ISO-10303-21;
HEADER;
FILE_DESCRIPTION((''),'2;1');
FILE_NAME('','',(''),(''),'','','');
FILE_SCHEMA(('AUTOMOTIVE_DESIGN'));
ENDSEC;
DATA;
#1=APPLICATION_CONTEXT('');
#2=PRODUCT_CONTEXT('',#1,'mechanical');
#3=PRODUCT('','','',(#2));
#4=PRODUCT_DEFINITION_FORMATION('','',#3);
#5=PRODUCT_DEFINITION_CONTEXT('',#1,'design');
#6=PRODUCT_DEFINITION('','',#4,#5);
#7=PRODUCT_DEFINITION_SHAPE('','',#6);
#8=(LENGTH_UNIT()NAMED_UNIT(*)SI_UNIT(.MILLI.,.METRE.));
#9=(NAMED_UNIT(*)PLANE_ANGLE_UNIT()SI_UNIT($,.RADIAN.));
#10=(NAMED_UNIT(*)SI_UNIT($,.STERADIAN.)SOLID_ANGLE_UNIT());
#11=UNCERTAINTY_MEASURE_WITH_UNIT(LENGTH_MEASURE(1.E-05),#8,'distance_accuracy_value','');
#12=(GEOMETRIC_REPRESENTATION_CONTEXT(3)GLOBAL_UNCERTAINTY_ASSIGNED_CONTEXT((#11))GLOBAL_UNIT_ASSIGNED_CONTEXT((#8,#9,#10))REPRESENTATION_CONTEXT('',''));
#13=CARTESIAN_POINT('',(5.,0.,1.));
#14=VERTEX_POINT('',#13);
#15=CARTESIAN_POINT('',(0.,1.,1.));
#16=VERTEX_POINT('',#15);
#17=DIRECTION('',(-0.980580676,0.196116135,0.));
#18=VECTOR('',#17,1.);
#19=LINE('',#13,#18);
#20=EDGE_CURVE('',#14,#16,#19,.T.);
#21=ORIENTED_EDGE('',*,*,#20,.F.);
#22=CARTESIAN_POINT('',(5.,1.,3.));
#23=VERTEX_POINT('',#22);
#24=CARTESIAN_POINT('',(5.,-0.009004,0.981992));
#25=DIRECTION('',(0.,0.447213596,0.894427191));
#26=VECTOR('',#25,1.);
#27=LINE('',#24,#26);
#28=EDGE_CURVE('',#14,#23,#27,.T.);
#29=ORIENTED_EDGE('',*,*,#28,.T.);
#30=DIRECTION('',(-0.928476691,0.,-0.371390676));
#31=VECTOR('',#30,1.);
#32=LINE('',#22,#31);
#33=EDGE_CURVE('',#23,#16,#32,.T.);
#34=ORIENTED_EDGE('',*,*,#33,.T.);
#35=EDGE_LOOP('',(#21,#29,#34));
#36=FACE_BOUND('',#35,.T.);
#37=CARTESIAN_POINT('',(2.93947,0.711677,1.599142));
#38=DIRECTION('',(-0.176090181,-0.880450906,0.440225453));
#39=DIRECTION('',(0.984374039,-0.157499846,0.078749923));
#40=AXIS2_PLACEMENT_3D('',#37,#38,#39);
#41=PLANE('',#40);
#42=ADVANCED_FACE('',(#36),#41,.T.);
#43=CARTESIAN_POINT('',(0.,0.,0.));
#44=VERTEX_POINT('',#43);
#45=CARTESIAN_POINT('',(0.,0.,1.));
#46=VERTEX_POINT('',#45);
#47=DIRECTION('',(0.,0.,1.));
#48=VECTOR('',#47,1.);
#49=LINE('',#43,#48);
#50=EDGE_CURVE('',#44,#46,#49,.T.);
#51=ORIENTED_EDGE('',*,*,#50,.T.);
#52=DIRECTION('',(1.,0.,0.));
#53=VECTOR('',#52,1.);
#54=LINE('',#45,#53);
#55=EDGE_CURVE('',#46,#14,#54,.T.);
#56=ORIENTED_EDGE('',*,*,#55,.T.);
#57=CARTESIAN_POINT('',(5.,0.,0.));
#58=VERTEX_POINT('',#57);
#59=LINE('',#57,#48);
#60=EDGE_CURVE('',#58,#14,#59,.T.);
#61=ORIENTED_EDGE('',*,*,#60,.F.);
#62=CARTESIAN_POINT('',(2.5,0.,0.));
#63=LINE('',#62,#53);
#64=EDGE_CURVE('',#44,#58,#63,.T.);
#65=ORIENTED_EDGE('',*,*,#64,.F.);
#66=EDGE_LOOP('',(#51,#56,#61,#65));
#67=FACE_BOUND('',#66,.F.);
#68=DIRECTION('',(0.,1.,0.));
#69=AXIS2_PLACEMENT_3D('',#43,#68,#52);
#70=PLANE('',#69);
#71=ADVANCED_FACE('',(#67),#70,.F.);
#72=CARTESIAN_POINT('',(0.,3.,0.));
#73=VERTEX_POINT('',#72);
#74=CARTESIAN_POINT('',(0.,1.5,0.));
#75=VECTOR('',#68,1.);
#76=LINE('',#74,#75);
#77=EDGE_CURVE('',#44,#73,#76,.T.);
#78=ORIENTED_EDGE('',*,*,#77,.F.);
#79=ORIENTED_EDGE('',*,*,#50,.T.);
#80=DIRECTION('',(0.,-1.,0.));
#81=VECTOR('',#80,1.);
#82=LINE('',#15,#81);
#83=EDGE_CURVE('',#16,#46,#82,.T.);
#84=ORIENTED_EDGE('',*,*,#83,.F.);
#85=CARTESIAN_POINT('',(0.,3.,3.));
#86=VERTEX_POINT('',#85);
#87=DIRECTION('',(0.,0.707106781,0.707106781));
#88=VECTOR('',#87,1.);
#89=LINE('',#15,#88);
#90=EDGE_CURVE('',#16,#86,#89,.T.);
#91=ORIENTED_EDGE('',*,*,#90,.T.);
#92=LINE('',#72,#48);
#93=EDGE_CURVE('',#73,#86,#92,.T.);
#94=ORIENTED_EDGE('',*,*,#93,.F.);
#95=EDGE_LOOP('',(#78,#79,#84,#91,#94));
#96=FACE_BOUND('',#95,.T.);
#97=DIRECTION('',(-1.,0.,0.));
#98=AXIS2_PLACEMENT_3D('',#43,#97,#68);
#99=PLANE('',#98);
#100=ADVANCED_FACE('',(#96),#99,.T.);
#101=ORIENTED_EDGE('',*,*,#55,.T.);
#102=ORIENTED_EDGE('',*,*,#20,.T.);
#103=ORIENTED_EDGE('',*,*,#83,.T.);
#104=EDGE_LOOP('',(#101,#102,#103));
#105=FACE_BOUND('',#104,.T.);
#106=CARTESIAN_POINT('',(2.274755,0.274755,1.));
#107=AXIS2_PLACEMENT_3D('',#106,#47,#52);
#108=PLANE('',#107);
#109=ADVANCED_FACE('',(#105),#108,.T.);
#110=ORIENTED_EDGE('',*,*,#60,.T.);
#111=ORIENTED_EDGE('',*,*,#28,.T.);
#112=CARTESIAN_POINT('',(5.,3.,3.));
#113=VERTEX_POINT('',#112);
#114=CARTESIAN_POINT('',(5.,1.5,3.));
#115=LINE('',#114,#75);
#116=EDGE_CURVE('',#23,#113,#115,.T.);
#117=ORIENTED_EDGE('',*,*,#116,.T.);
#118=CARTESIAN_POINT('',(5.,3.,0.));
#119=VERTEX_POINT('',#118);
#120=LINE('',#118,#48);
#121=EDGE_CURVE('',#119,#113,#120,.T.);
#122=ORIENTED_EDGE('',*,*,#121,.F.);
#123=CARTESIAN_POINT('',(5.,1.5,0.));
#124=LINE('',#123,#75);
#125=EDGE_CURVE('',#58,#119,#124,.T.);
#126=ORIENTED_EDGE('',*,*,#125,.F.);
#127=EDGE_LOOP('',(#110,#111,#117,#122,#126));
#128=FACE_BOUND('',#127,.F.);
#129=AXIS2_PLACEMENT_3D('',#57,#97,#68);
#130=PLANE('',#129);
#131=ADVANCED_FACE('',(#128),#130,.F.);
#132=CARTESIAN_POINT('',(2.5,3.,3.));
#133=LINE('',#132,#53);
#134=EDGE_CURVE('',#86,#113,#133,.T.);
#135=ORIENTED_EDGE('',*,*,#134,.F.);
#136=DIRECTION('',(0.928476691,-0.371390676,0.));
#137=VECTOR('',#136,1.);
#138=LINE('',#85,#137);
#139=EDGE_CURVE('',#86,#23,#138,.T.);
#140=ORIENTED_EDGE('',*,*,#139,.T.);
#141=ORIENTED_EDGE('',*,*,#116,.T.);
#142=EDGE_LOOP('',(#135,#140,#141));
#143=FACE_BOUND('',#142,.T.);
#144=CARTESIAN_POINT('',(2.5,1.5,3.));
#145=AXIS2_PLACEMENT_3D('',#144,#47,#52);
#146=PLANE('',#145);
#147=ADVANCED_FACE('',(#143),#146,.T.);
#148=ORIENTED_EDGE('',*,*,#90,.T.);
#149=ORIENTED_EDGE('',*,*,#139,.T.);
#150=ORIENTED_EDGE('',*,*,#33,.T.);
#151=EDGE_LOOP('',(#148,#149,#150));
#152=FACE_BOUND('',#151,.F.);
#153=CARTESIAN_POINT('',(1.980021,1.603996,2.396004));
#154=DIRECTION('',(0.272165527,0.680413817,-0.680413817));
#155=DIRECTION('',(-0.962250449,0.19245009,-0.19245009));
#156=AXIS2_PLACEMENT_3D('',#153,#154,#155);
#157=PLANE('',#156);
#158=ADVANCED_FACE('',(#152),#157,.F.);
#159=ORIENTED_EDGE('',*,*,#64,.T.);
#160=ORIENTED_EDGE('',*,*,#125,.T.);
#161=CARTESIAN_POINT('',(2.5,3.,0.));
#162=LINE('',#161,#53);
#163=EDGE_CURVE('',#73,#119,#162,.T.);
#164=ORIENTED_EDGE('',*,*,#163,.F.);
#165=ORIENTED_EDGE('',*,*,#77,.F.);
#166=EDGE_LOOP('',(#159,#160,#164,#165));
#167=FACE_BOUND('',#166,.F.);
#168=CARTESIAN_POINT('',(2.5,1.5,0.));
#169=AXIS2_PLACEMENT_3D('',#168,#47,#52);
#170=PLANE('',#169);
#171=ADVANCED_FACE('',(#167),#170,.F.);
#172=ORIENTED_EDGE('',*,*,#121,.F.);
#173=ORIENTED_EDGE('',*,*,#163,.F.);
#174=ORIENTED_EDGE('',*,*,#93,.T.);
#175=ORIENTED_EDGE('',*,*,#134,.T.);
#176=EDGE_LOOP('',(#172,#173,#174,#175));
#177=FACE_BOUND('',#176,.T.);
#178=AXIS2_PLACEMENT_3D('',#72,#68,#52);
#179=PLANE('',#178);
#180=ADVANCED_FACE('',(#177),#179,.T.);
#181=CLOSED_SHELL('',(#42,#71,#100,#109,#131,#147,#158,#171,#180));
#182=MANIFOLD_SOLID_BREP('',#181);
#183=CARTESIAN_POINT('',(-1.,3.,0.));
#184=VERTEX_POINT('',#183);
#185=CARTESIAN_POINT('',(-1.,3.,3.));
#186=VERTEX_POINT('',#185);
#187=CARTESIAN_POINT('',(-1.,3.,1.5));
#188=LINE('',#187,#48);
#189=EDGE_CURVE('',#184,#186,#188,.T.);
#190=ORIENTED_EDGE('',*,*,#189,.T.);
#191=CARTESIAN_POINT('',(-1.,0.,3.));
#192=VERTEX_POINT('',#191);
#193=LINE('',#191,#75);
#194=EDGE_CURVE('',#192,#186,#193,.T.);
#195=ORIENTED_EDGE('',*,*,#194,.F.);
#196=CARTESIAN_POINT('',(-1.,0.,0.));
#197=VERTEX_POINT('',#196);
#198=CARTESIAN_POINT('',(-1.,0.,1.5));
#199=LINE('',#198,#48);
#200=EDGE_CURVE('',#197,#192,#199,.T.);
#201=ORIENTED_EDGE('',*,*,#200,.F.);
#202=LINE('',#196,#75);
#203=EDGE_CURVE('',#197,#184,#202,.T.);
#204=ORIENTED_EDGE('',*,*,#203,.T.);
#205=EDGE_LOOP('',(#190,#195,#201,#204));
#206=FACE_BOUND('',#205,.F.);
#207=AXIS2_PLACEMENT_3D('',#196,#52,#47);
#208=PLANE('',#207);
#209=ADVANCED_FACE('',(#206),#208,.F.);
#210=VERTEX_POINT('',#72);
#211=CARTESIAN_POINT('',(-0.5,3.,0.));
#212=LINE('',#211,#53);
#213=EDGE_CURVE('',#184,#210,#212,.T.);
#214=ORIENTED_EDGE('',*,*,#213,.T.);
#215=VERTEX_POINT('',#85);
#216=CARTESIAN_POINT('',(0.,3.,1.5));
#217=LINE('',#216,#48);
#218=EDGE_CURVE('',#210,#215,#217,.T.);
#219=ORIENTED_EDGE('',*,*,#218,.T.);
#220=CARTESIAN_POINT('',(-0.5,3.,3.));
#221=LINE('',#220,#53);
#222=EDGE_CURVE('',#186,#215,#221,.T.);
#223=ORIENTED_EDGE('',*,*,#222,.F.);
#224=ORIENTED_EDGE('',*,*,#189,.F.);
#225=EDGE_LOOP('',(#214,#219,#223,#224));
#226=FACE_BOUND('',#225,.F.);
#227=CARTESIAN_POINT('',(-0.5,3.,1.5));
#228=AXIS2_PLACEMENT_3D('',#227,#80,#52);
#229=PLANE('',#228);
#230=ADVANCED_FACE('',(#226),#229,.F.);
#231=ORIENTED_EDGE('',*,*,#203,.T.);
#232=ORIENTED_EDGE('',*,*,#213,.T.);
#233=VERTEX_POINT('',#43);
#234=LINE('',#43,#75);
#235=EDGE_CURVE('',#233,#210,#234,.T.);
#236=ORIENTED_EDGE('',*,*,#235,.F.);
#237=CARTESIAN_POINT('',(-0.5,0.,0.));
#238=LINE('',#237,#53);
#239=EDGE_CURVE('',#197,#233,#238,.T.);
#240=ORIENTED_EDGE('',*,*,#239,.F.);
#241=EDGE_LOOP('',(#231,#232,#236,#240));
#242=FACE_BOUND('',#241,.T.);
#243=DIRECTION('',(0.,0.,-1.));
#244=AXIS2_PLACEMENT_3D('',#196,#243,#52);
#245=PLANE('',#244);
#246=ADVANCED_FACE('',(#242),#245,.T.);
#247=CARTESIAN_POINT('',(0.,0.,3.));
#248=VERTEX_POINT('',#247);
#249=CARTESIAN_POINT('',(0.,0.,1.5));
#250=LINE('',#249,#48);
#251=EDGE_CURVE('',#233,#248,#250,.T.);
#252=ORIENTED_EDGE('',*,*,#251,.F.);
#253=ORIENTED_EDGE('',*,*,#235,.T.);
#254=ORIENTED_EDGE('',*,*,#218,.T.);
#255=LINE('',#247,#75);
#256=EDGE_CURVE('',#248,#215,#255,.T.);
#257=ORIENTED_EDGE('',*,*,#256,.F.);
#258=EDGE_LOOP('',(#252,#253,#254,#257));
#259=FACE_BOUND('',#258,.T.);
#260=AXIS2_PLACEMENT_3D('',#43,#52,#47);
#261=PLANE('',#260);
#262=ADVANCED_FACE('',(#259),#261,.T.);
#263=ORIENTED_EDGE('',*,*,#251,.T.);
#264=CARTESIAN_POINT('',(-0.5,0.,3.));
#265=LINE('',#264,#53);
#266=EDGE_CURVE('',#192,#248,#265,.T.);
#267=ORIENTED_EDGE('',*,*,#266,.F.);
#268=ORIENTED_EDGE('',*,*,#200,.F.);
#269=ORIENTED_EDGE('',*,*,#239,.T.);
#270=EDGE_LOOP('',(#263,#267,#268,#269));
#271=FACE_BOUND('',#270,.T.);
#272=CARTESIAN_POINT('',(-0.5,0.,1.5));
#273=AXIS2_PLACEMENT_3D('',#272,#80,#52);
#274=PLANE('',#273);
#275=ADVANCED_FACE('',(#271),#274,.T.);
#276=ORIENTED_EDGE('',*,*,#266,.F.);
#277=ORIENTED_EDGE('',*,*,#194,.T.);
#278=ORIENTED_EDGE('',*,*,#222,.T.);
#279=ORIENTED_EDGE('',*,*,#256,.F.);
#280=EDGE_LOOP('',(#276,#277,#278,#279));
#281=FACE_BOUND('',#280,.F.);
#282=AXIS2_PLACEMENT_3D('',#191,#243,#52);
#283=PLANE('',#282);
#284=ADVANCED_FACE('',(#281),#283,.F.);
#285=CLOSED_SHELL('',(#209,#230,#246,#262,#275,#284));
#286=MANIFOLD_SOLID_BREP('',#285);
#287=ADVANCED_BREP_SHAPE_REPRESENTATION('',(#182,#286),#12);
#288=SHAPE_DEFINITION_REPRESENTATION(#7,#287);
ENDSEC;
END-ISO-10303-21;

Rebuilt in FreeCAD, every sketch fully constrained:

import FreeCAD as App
import Part
import Sketcher

doc = App.newDocument("Part")
body = doc.addObject("PartDesign::Body", "Body")

sketch1 = body.newObject("Sketcher::SketchObject", "Sketch")
sketch1.AttachmentSupport = (doc.getObject("XY_Plane"), [""])
sketch1.MapMode = "FlatFace"
sketch1.addGeometry([
    Part.LineSegment(App.Vector(0, 3, 0), App.Vector(0, 0, 0)),
    Part.LineSegment(App.Vector(0, 0, 0), App.Vector(5, 0, 0)),
    Part.LineSegment(App.Vector(5, 0, 0), App.Vector(5, 3, 0)),
    Part.LineSegment(App.Vector(5, 3, 0), App.Vector(0, 3, 0)),
], False)
sketch1.addConstraint([
    Sketcher.Constraint("Coincident", 0, 2, 1, 1),
    Sketcher.Constraint("Coincident", 1, 2, 2, 1),
    Sketcher.Constraint("Coincident", 2, 2, 3, 1),
    Sketcher.Constraint("Coincident", 3, 2, 0, 1),
    Sketcher.Constraint("Vertical", 0),
    Sketcher.Constraint("Horizontal", 1),
    Sketcher.Constraint("Vertical", 2),
    Sketcher.Constraint("Horizontal", 3),
    Sketcher.Constraint("Coincident", 0, 2, -1, 1),
    Sketcher.Constraint("DistanceX", 1, 1, 1, 2, 5.0),
    Sketcher.Constraint("DistanceY", 0, 2, 0, 1, 3.0),
])
pad1 = body.newObject("PartDesign::Pad", "Pad")
pad1.Profile = sketch1
pad1.Length = 3

sketch2 = body.newObject("Sketcher::SketchObject", "Sketch001")
sketch2.AttachmentSupport = (doc.getObject("XY_Plane"), [""])
sketch2.MapMode = "FlatFace"
sketch2.AttachmentOffset = App.Placement(App.Vector(0, 0, 3), App.Rotation())
sketch2.addGeometry([
    Part.LineSegment(App.Vector(0, 1, 0), App.Vector(0, 0, 0)),
    Part.LineSegment(App.Vector(0, 0, 0), App.Vector(5, 0, 0)),
    Part.LineSegment(App.Vector(5, 0, 0), App.Vector(0, 1, 0)),
], False)
sketch2.addConstraint([
    Sketcher.Constraint("Coincident", 0, 2, 1, 1),
    Sketcher.Constraint("Coincident", 1, 2, 2, 1),
    Sketcher.Constraint("Coincident", 2, 2, 0, 1),
    Sketcher.Constraint("Vertical", 0),
    Sketcher.Constraint("Horizontal", 1),
    Sketcher.Constraint("Coincident", 0, 2, -1, 1),
    Sketcher.Constraint("DistanceX", 1, 1, 1, 2, 5.0),
    Sketcher.Constraint("DistanceY", 0, 2, 0, 1, 1.0),
])
pocket1 = body.newObject("PartDesign::Pocket", "Pocket")
pocket1.Profile = sketch2
pocket1.Length = 2

sketch3 = body.newObject("Sketcher::SketchObject", "Sketch002")
sketch3.Placement = App.Placement(App.Vector(0.077519, 0.387597, -0.193798), App.Rotation(App.Vector(0.984374039, -0.157499846, 0.078749923), App.Vector(0, 0.447213595, 0.894427191), App.Vector(-0.176090181, -0.880450906, 0.440225453), "ZXY"))
sketch3.addGeometry([
    Part.LineSegment(App.Vector(5.00062, 3.130495, 0), App.Vector(-0.07875, 1.341641, 0)),
    Part.LineSegment(App.Vector(-0.07875, 1.341641, 0), App.Vector(5.00062, 0.894427, 0)),
    Part.LineSegment(App.Vector(5.00062, 0.894427, 0), App.Vector(6.736911, 0.894427, 0)),
    Part.LineSegment(App.Vector(6.736911, 0.894427, 0), App.Vector(6.736911, 3.130495, 0)),
    Part.LineSegment(App.Vector(6.736911, 3.130495, 0), App.Vector(5.00062, 3.130495, 0)),
], False)
sketch3.addConstraint([
    Sketcher.Constraint("Coincident", 0, 2, 1, 1),
    Sketcher.Constraint("Coincident", 1, 2, 2, 1),
    Sketcher.Constraint("Coincident", 2, 2, 3, 1),
    Sketcher.Constraint("Coincident", 3, 2, 4, 1),
    Sketcher.Constraint("Coincident", 4, 2, 0, 1),
    Sketcher.Constraint("Horizontal", 2),
    Sketcher.Constraint("Vertical", 3),
    Sketcher.Constraint("Horizontal", 4),
    Sketcher.Constraint("Vertical", 1, 2, 4, 2),
    Sketcher.Constraint("DistanceX", 2, 1, 2, 2, 1.736291),
    Sketcher.Constraint("Distance", 1, 5.09902),
    Sketcher.Constraint("DistanceY", 3, 1, 3, 2, 2.236068),
    Sketcher.Constraint("DistanceX", 0, 2, -1, 1, 0.07875),
    Sketcher.Constraint("DistanceY", -1, 1, 0, 2, 1.341641),
    Sketcher.Constraint("DistanceX", -1, 1, 1, 2, 5.00062),
])
pocket2 = body.newObject("PartDesign::Pocket", "Pocket001")
pocket2.Profile = sketch3
pocket2.Length = 25
pocket2.Reversed = True

sketch4 = body.newObject("Sketcher::SketchObject", "Sketch003")
sketch4.Placement = App.Placement(App.Vector(0, 0, 0), App.Rotation(App.Vector(-0.962250449, 0.19245009, -0.19245009), App.Vector(0, 0.707106781, 0.707106781), App.Vector(0.272165527, 0.680413817, -0.680413817), "ZXY"))
sketch4.addGeometry([
    Part.LineSegment(App.Vector(0, 1.414214, 0), App.Vector(0, 4.242641, 0)),
    Part.LineSegment(App.Vector(0, 4.242641, 0), App.Vector(-5.196152, 2.828427, 0)),
    Part.LineSegment(App.Vector(-5.196152, 2.828427, 0), App.Vector(-5.196152, 1.501031, 0)),
    Part.LineSegment(App.Vector(-5.196152, 1.501031, 0), App.Vector(0, 1.414214, 0)),
], False)
sketch4.addConstraint([
    Sketcher.Constraint("Coincident", 0, 2, 1, 1),
    Sketcher.Constraint("Coincident", 1, 2, 2, 1),
    Sketcher.Constraint("Coincident", 2, 2, 3, 1),
    Sketcher.Constraint("Coincident", 3, 2, 0, 1),
    Sketcher.Constraint("Vertical", 0),
    Sketcher.Constraint("Vertical", 2),
    Sketcher.Constraint("PointOnObject", 0, 2, -2),
    Sketcher.Constraint("DistanceY", 0, 1, 0, 2, 2.828427),
    Sketcher.Constraint("DistanceY", 2, 2, 2, 1, 1.327396),
    Sketcher.Constraint("DistanceY", -1, 1, 0, 2, 4.242641),
    Sketcher.Constraint("DistanceY", -1, 1, 2, 2, 1.501031),
    Sketcher.Constraint("Distance", 1, 5.385165),
])
pocket3 = body.newObject("PartDesign::Pocket", "Pocket002")
pocket3.Profile = sketch4
pocket3.Length = 25
body2 = doc.addObject("PartDesign::Body", "Body001")

sketch5 = body2.newObject("Sketcher::SketchObject", "Sketch004")
sketch5.AttachmentSupport = (doc.getObject("XZ_Plane001"), [""])
sketch5.MapMode = "FlatFace"
sketch5.addGeometry([
    Part.LineSegment(App.Vector(-1, 3, 0), App.Vector(-1, 0, 0)),
    Part.LineSegment(App.Vector(-1, 0, 0), App.Vector(0, 0, 0)),
    Part.LineSegment(App.Vector(0, 0, 0), App.Vector(0, 3, 0)),
    Part.LineSegment(App.Vector(0, 3, 0), App.Vector(-1, 3, 0)),
], False)
sketch5.addConstraint([
    Sketcher.Constraint("Coincident", 0, 2, 1, 1),
    Sketcher.Constraint("Coincident", 1, 2, 2, 1),
    Sketcher.Constraint("Coincident", 2, 2, 3, 1),
    Sketcher.Constraint("Coincident", 3, 2, 0, 1),
    Sketcher.Constraint("Vertical", 0),
    Sketcher.Constraint("Horizontal", 1),
    Sketcher.Constraint("Vertical", 2),
    Sketcher.Constraint("Horizontal", 3),
    Sketcher.Constraint("Coincident", 1, 2, -1, 1),
    Sketcher.Constraint("DistanceX", 1, 1, 1, 2, 1.0),
    Sketcher.Constraint("DistanceY", 0, 2, 0, 1, 3.0),
])
pad2 = body2.newObject("PartDesign::Pad", "Pad001")
pad2.Profile = sketch5
pad2.Length = 3
pad2.Reversed = True

doc.recompute()
